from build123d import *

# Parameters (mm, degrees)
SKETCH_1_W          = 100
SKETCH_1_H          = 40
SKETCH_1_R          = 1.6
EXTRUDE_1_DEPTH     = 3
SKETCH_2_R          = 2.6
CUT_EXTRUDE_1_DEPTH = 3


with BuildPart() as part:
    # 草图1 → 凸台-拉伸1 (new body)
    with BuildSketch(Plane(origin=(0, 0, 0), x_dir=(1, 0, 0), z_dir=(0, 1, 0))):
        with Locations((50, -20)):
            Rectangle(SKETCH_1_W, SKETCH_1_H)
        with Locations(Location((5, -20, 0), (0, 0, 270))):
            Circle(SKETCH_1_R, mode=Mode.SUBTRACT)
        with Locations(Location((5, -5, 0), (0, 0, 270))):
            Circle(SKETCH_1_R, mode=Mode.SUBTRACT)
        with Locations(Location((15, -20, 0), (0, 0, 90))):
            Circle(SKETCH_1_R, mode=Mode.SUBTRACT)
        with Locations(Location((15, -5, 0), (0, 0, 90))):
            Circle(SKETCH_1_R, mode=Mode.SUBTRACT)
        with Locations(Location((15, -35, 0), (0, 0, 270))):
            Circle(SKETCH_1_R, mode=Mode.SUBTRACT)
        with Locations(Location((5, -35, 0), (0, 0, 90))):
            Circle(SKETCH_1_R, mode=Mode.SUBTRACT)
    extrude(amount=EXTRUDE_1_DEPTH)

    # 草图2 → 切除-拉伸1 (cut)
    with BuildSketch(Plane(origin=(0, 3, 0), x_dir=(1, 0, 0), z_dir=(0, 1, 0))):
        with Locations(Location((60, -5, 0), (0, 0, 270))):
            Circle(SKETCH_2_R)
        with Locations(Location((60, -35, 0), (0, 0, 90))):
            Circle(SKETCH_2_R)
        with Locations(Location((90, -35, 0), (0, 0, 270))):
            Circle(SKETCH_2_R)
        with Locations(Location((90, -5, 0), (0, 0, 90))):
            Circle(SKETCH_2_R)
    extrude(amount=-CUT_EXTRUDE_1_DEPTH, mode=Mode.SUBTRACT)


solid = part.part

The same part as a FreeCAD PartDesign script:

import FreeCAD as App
import Part
import Sketcher

V = App.Vector


def add_polygon(sketch, points):
    """Adds a closed chain of lines whose ends are joined by coincident constraints."""
    first, n = sketch.GeometryCount, len(points)
    for a, b in zip(points, points[1:] + points[:1]):
        sketch.addGeometry(Part.LineSegment(App.Vector(*a, 0), App.Vector(*b, 0)), False)
    for i in range(n):
        sketch.addConstraint(Sketcher.Constraint("Coincident", first + i, 2, first + (i + 1) % n, 1))

doc = App.newDocument("Part")
body = doc.addObject("PartDesign::Body", "Body")

# Sketch on XZ plane
sketch1 = body.newObject("Sketcher::SketchObject", "Sketch")
sketch1.AttachmentSupport = (doc.getObject("XZ_Plane"), [""])
sketch1.MapMode = "FlatFace"
add_polygon(sketch1, [(0, 0), (0, 40), (100, 40), (100, 0)])  # lines 0-3
sketch1.addGeometry(Part.Circle(V(5, 35, 0), V(0, 0, 1), 1.6), False)  # 4
sketch1.addGeometry(Part.Circle(V(15, 35, 0), V(0, 0, 1), 1.6), False)  # 5
sketch1.addGeometry(Part.Circle(V(5, 20, 0), V(0, 0, 1), 1.6), False)  # 6
sketch1.addGeometry(Part.Circle(V(5, 5, 0), V(0, 0, 1), 1.6), False)  # 7
sketch1.addGeometry(Part.Circle(V(15, 20, 0), V(0, 0, 1), 1.6), False)  # 8
sketch1.addGeometry(Part.Circle(V(15, 5, 0), V(0, 0, 1), 1.6), False)  # 9
sketch1.addConstraint([
    Sketcher.Constraint("Vertical", 0),
    Sketcher.Constraint("Horizontal", 1),
    Sketcher.Constraint("Vertical", 2),
    Sketcher.Constraint("Horizontal", 3),
    Sketcher.Constraint("Coincident", 3, 2, -1, 1),
    Sketcher.Constraint("Equal", 4, 5),
    Sketcher.Constraint("Equal", 5, 6),
    Sketcher.Constraint("Equal", 6, 7),
    Sketcher.Constraint("Equal", 7, 8),
    Sketcher.Constraint("Equal", 8, 9),
    Sketcher.Constraint("Horizontal", 4, 3, 5, 3),
    Sketcher.Constraint("Horizontal", 6, 3, 8, 3),
    Sketcher.Constraint("Horizontal", 7, 3, 9, 3),
    Sketcher.Constraint("Vertical", 4, 3, 6, 3),
    Sketcher.Constraint("Vertical", 6, 3, 7, 3),
    Sketcher.Constraint("Vertical", 5, 3, 8, 3),
    Sketcher.Constraint("Vertical", 8, 3, 9, 3),
    Sketcher.Constraint("Diameter", 4, 3.2),
    Sketcher.Constraint("DistanceX", 1, 1, 1, 2, 100.0),
    Sketcher.Constraint("DistanceY", 0, 1, 0, 2, 40.0),
    Sketcher.Constraint("DistanceX", -1, 1, 4, 3, 5.0),
    Sketcher.Constraint("DistanceY", -1, 1, 4, 3, 35.0),
    Sketcher.Constraint("DistanceX", -1, 1, 5, 3, 15.0),
    Sketcher.Constraint("DistanceY", -1, 1, 6, 3, 20.0),
    Sketcher.Constraint("DistanceY", -1, 1, 7, 3, 5.0),
])
pad1 = body.newObject("PartDesign::Pad", "Pad")
pad1.Profile = sketch1
pad1.Length = 3
pad1.Reversed = True

# Sketch on XZ plane
sketch2 = body.newObject("Sketcher::SketchObject", "Sketch001")
sketch2.AttachmentSupport = (doc.getObject("XZ_Plane"), [""])
sketch2.MapMode = "FlatFace"
sketch2.AttachmentOffset = App.Placement(V(0, 0, -3), App.Rotation())
sketch2.addGeometry([
    Part.Circle(V(60, 5, 0), V(0, 0, 1), 2.6),
    Part.Circle(V(60, 35, 0), V(0, 0, 1), 2.6),
    Part.Circle(V(90, 35, 0), V(0, 0, 1), 2.6),
    Part.Circle(V(90, 5, 0), V(0, 0, 1), 2.6),
], False)
sketch2.addConstraint([
    Sketcher.Constraint("Equal", 0, 1),
    Sketcher.Constraint("Equal", 1, 2),
    Sketcher.Constraint("Equal", 2, 3),
    Sketcher.Constraint("Horizontal", 1, 3, 2, 3),
    Sketcher.Constraint("Horizontal", 0, 3, 3, 3),
    Sketcher.Constraint("Vertical", 0, 3, 1, 3),
    Sketcher.Constraint("Vertical", 2, 3, 3, 3),
    Sketcher.Constraint("Diameter", 0, 5.2),
    Sketcher.Constraint("DistanceX", -1, 1, 0, 3, 60.0),
    Sketcher.Constraint("DistanceY", -1, 1, 0, 3, 5.0),
    Sketcher.Constraint("DistanceY", -1, 1, 1, 3, 35.0),
    Sketcher.Constraint("DistanceX", -1, 1, 2, 3, 90.0),
])
pocket1 = body.newObject("PartDesign::Pocket", "Pocket")
pocket1.Profile = sketch2
pocket1.Length = 3
pocket1.Reversed = True

doc.recompute()
